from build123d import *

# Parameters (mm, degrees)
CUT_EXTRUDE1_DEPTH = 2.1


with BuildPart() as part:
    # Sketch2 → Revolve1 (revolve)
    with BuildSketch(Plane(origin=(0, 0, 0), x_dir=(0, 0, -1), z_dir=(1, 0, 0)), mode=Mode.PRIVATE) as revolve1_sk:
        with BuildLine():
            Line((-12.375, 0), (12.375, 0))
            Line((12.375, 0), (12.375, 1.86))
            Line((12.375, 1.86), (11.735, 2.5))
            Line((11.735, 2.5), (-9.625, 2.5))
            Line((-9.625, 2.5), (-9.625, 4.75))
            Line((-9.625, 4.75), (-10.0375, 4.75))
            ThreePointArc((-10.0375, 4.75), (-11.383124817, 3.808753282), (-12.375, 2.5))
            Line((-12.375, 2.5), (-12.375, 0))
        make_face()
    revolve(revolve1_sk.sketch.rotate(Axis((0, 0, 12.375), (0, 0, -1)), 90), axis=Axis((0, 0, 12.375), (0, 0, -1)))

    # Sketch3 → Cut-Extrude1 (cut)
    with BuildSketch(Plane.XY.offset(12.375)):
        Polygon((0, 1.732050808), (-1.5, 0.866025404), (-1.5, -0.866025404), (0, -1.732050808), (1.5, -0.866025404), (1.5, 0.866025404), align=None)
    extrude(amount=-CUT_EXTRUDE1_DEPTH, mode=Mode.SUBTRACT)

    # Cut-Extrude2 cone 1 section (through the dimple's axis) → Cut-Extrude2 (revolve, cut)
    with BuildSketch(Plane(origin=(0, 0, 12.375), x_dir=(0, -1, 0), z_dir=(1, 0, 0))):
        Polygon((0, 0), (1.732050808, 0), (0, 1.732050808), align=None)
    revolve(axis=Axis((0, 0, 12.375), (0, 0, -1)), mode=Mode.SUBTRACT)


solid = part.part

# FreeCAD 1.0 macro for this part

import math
import FreeCAD as App
import Part
import Sketcher
Q = App.Units.Quantity

doc = App.newDocument("Part")
params = doc.addObject("Spreadsheet::Sheet", "Params")
for row, (alias, value) in enumerate([
    ("sketch1_width", "2.5 mm"),
    ("sketch1_width2", "1.86 mm"),
    ("sketch1_width3", "2.25 mm"),
    ("sketch1_height", "24.75 mm"),
    ("revolution_angle", "360 deg"),
    ("pocket1_length", "2.1 mm"),
    ("groove_angle", "360 deg"),
], start=1):
    params.set(f"A{row}", alias)
    params.set(f"B{row}", "=" + value)
    params.setAlias(f"B{row}", alias)

body = doc.addObject("PartDesign::Body", "Body")

# Sketch on YZ plane
sketch1 = body.newObject("Sketcher::SketchObject", "Sketch")
sketch1.AttachmentSupport = (doc.getObject("YZ_Plane"), [""])
sketch1.MapMode = "FlatFace"
sketch1.addGeometry([
    Part.LineSegment(App.Vector(0, 12.375, 0), App.Vector(0, -12.375, 0)),  # 0
    Part.LineSegment(App.Vector(0, -12.375, 0), App.Vector(1.86, -12.375, 0)),  # 1
    Part.LineSegment(App.Vector(1.86, -12.375, 0), App.Vector(2.5, -11.735, 0)),  # 2
    Part.LineSegment(App.Vector(2.5, -11.735, 0), App.Vector(2.5, 9.625, 0)),  # 3
    Part.LineSegment(App.Vector(2.5, 9.625, 0), App.Vector(4.75, 9.625, 0)),  # 4
    Part.LineSegment(App.Vector(4.75, 9.625, 0), App.Vector(4.75, 10.0375, 0)),  # 5
    Part.ArcOfCircle(Part.Circle(App.Vector(0, 7.716945, 0), App.Vector(0, 0, 1), 5.286537), math.radians(26.03726), math.radians(61.777335)),  # 6
    Part.LineSegment(App.Vector(2.5, 12.375, 0), App.Vector(0, 12.375, 0)),  # 7
], False)
sketch1.addConstraint([
    Sketcher.Constraint("Coincident", 0, 2, 1, 1),
    Sketcher.Constraint("Coincident", 1, 2, 2, 1),
    Sketcher.Constraint("Coincident", 2, 2, 3, 1),
    Sketcher.Constraint("Coincident", 3, 2, 4, 1),
    Sketcher.Constraint("Coincident", 4, 2, 5, 1),
    Sketcher.Constraint("Coincident", 5, 2, 6, 1),
    Sketcher.Constraint("Coincident", 6, 2, 7, 1),
    Sketcher.Constraint("Coincident", 7, 2, 0, 1),
    Sketcher.Constraint("Vertical", 0),
    Sketcher.Constraint("Horizontal", 1),
    Sketcher.Constraint("Vertical", 3),
    Sketcher.Constraint("Horizontal", 4),
    Sketcher.Constraint("Vertical", 5),
    Sketcher.Constraint("Horizontal", 7),
    Sketcher.Constraint("Symmetric", 0, 2, 7, 2, -1, 1),
    Sketcher.Constraint("PointOnObject", 6, 3, -2),
    Sketcher.Constraint("Vertical", 3, 2, 6, 2),
    Sketcher.Constraint("Angle", 2, Q("45 deg")),
    Sketcher.Constraint("DistanceX", 7, 2, 7, 1, 2.5),
    Sketcher.Constraint("DistanceY", 1, 2, 3, 2, 22.0),
    Sketcher.Constraint("DistanceX", 1, 1, 1, 2, 1.86),
    Sketcher.Constraint("DistanceX", 4, 1, 4, 2, 2.25),
    Sketcher.Constraint("DistanceY", 0, 2, 0, 1, 24.75),
    Sketcher.Constraint("DistanceY", 5, 1, 5, 2, 0.4125),
])
sketch1.setExpression("Constraints[18]", "Params.sketch1_width")
sketch1.setExpression("Constraints[20]", "Params.sketch1_width2")
sketch1.setExpression("Constraints[21]", "Params.sketch1_width3")
sketch1.setExpression("Constraints[22]", "Params.sketch1_height")
revolution = body.newObject("PartDesign::Revolution", "Revolution")
revolution.Profile = sketch1
revolution.ReferenceAxis = (sketch1, ["V_Axis"])
revolution.setExpression("Angle", "Params.revolution_angle")

# Sketch on XY plane
sketch2 = body.newObject("Sketcher::SketchObject", "Sketch001")
sketch2.AttachmentSupport = (doc.getObject("XY_Plane"), [""])
sketch2.MapMode = "FlatFace"
sketch2.AttachmentOffset = App.Placement(App.Vector(0, 0, 12.375), App.Rotation())
sketch2.addGeometry([
    Part.LineSegment(App.Vector(0, 1.732051, 0), App.Vector(-1.5, 0.866025, 0)),  # 0
    Part.LineSegment(App.Vector(-1.5, 0.866025, 0), App.Vector(-1.5, -0.866025, 0)),  # 1
    Part.LineSegment(App.Vector(-1.5, -0.866025, 0), App.Vector(0, -1.732051, 0)),  # 2
    Part.LineSegment(App.Vector(0, -1.732051, 0), App.Vector(1.5, -0.866025, 0)),  # 3
    Part.LineSegment(App.Vector(1.5, -0.866025, 0), App.Vector(1.5, 0.866025, 0)),  # 4
    Part.LineSegment(App.Vector(1.5, 0.866025, 0), App.Vector(0, 1.732051, 0)),  # 5
], False)
sketch2.addConstraint([
    Sketcher.Constraint("Coincident", 0, 2, 1, 1),
    Sketcher.Constraint("Coincident", 1, 2, 2, 1),
    Sketcher.Constraint("Coincident", 2, 2, 3, 1),
    Sketcher.Constraint("Coincident", 3, 2, 4, 1),
    Sketcher.Constraint("Coincident", 4, 2, 5, 1),
    Sketcher.Constraint("Coincident", 5, 2, 0, 1),
    Sketcher.Constraint("Vertical", 1),
    Sketcher.Constraint("Vertical", 4),
    Sketcher.Constraint("Symmetric", 0, 2, 3, 2, -1, 1),
    Sketcher.Constraint("Symmetric", 2, 2, 5, 2, -1, 1),
    Sketcher.Constraint("PointOnObject", 2, 2, -2),
    Sketcher.Constraint("Parallel", 2, 5),
    Sketcher.Constraint("Horizontal", 1, 2, 3, 2),
    Sketcher.Constraint("Angle", 0, Q("-150 deg")),
    Sketcher.Constraint("DistanceX", 1, 2, 3, 2, 3.0),
    Sketcher.Constraint("DistanceY", 1, 2, 1, 1, 1.732051),
])
pocket1 = body.newObject("PartDesign::Pocket", "Pocket")
pocket1.Profile = sketch2
pocket1.setExpression("Length", "Params.pocket1_length")

# Sketch on YZ plane
sketch3 = body.newObject("Sketcher::SketchObject", "Sketch002")
sketch3.AttachmentSupport = (doc.getObject("YZ_Plane"), [""])
sketch3.MapMode = "FlatFace"
sketch3.addGeometry([
    Part.LineSegment(App.Vector(0, 12.375, 0), App.Vector(-1.732051, 12.375, 0)),
    Part.LineSegment(App.Vector(-1.732051, 12.375, 0), App.Vector(0, 10.642949, 0)),
    Part.LineSegment(App.Vector(0, 10.642949, 0), App.Vector(0, 12.375, 0)),
], False)
sketch3.addConstraint([
    Sketcher.Constraint("Coincident", 0, 2, 1, 1),
    Sketcher.Constraint("Coincident", 1, 2, 2, 1),
    Sketcher.Constraint("Coincident", 2, 2, 0, 1),
    Sketcher.Constraint("Horizontal", 0),
    Sketcher.Constraint("Vertical", 2),
    Sketcher.Constraint("PointOnObject", 1, 2, -2),
    Sketcher.Constraint("Equal", 0, 2),
    Sketcher.Constraint("DistanceY", -1, 1, 0, 2, 12.375),
    Sketcher.Constraint("DistanceX", 0, 2, 0, 1, 1.732051),
])
groove = body.newObject("PartDesign::Groove", "Groove")
groove.Profile = sketch3
groove.ReferenceAxis = (sketch3, ["V_Axis"])
groove.setExpression("Angle", "Params.groove_angle")

doc.recompute()
